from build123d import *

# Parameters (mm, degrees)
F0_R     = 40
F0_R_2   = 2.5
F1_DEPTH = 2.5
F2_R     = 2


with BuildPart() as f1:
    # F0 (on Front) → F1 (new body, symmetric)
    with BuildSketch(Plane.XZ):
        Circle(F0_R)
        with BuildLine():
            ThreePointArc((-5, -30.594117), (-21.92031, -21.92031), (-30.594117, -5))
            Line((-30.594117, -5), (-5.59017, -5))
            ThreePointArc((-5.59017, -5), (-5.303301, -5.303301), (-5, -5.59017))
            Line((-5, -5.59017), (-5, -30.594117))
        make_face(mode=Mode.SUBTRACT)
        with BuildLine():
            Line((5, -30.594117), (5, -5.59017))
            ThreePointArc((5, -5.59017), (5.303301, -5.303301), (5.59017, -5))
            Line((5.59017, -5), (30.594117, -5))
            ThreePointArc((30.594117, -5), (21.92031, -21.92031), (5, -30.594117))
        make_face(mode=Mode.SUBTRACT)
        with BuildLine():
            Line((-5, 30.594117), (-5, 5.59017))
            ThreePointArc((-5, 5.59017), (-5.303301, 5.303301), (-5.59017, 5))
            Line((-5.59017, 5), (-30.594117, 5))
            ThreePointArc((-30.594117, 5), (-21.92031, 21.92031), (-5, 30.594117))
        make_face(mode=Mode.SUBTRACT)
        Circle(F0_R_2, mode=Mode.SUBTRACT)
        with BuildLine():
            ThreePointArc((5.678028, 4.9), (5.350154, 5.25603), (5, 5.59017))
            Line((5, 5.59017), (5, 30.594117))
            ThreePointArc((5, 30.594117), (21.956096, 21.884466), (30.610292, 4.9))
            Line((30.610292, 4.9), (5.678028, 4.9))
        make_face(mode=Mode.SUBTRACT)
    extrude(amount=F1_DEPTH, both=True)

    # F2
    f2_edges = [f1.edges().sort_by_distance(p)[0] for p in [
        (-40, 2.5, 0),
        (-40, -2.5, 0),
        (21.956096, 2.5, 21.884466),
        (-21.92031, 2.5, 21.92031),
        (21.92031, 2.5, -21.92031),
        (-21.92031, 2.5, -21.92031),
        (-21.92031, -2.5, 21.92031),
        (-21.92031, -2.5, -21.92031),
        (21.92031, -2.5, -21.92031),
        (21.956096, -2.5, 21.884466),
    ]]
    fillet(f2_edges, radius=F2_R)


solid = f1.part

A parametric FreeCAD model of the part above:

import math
import FreeCAD as App
import Part
import Sketcher
Q = App.Units.Quantity


def edges_at(feature, points):
    """Names of the edges that pass closest to the given points."""
    edges = feature.Shape.Edges
    near = lambda p: min(range(len(edges)), key=lambda i: edges[i].distToShape(Part.Vertex(*p))[0])
    return sorted({f"Edge{near(p) + 1}" for p in points})

doc = App.newDocument("Part")
body = doc.addObject("PartDesign::Body", "Body")

# Sketch on XZ plane
sketch1 = doc.addObject("Sketcher::SketchObject", "Sketch")
body.addObject(sketch1)
sketch1.AttachmentSupport = (doc.XZ_Plane, [""])
sketch1.MapMode = "FlatFace"
sketch1.addGeometry([
    Part.Circle(App.Vector(0, 0, 0), App.Vector(0, 0, 1), 40),  # 0
    Part.LineSegment(App.Vector(-5, -5.59017, 0), App.Vector(-5, -30.594117, 0)),  # 1
    Part.ArcOfCircle(Part.Circle(App.Vector(0.000001, 0.000001, 0), App.Vector(0, 0, 1), 31.000001), math.radians(-170.7182), math.radians(-99.2818)),  # 2
    Part.LineSegment(App.Vector(-30.594117, -5, 0), App.Vector(-5.59017, -5, 0)),  # 3
    Part.ArcOfCircle(Part.Circle(App.Vector(-0.000072, -0.000072, 0), App.Vector(0, 0, 1), 7.499898), math.radians(-138.189729), math.radians(-131.810271)),  # 4
    Part.Circle(App.Vector(0, 0, 0), App.Vector(0, 0, 1), 2.5),  # 5
    Part.ArcOfCircle(Part.Circle(App.Vector(-0.000001, 0.000001, 0), App.Vector(0, 0, 1), 31.000001), math.radians(-80.7182), math.radians(-9.2818)),  # 6
    Part.LineSegment(App.Vector(5, -30.594117, 0), App.Vector(5, -5.59017, 0)),  # 7
    Part.ArcOfCircle(Part.Circle(App.Vector(0.000072, -0.000072, 0), App.Vector(0, 0, 1), 7.499898), math.radians(-48.189729), math.radians(-41.810271)),  # 8
    Part.LineSegment(App.Vector(5.59017, -5, 0), App.Vector(30.594117, -5, 0)),  # 9
    Part.ArcOfCircle(Part.Circle(App.Vector(0.000001, -0.000001, 0), App.Vector(0, 0, 1), 31.000001), math.radians(99.2818), math.radians(170.7182)),  # 10
    Part.LineSegment(App.Vector(-5, 30.594117, 0), App.Vector(-5, 5.59017, 0)),  # 11
    Part.ArcOfCircle(Part.Circle(App.Vector(-0.000072, 0.000072, 0), App.Vector(0, 0, 1), 7.499898), math.radians(131.810271), math.radians(138.189729)),  # 12
    Part.LineSegment(App.Vector(-5.59017, 5, 0), App.Vector(-30.594117, 5, 0)),  # 13
    Part.LineSegment(App.Vector(30.610292, 4.9, 0), App.Vector(5.678028, 4.9, 0)),  # 14
    Part.ArcOfCircle(Part.Circle(App.Vector(-0.000048, -0.000048, 0), App.Vector(0, 0, 1), 7.500068), math.radians(40.793433), math.radians(48.189657)),  # 15
    Part.LineSegment(App.Vector(5, 5.59017, 0), App.Vector(5, 30.594117, 0)),  # 16
    Part.ArcOfCircle(Part.Circle(App.Vector(0.000001, 0.000001, 0), App.Vector(0, 0, 1), 30.999999), math.radians(9.09457), math.radians(80.718202)),  # 17
], False)
sketch1.addConstraint([
    Sketcher.Constraint("Coincident", 1, 2, 2, 2),
    Sketcher.Constraint("Coincident", 2, 1, 3, 1),
    Sketcher.Constraint("Coincident", 3, 2, 4, 1),
    Sketcher.Constraint("Coincident", 4, 2, 1, 1),
    Sketcher.Constraint("Coincident", 6, 1, 7, 1),
    Sketcher.Constraint("Coincident", 7, 2, 8, 1),
    Sketcher.Constraint("Coincident", 8, 2, 9, 1),
    Sketcher.Constraint("Coincident", 9, 2, 6, 2),
    Sketcher.Constraint("Coincident", 10, 1, 11, 1),
    Sketcher.Constraint("Coincident", 11, 2, 12, 1),
    Sketcher.Constraint("Coincident", 12, 2, 13, 1),
    Sketcher.Constraint("Coincident", 13, 2, 10, 2),
    Sketcher.Constraint("Coincident", 14, 2, 15, 1),
    Sketcher.Constraint("Coincident", 15, 2, 16, 1),
    Sketcher.Constraint("Coincident", 16, 2, 17, 2),
    Sketcher.Constraint("Coincident", 17, 1, 14, 1),
    Sketcher.Constraint("Vertical", 1),
    Sketcher.Constraint("Horizontal", 3),
    Sketcher.Constraint("Vertical", 7),
    Sketcher.Constraint("Horizontal", 9),
    Sketcher.Constraint("Vertical", 11),
    Sketcher.Constraint("Horizontal", 13),
    Sketcher.Constraint("Horizontal", 14),
    Sketcher.Constraint("Vertical", 16),
    Sketcher.Constraint("Coincident", 0, 3, -1, 1),
    Sketcher.Constraint("Coincident", 2, 3, -1, 1),
    Sketcher.Constraint("Coincident", 5, 3, -1, 1),
    Sketcher.Constraint("Coincident", 6, 3, -1, 1),
    Sketcher.Constraint("Coincident", 10, 3, -1, 1),
    Sketcher.Constraint("Coincident", 17, 3, -1, 1),
    Sketcher.Constraint("Equal", 2, 6),
    Sketcher.Constraint("Equal", 4, 8),
    Sketcher.Constraint("Equal", 6, 10),
    Sketcher.Constraint("Equal", 8, 12),
    Sketcher.Constraint("Symmetric", 8, 3, 12, 3, -1, 1),
    Sketcher.Constraint("Symmetric", 4, 2, 15, 2, -1, 1),
    Sketcher.Constraint("Symmetric", 4, 3, 8, 3, -2),
    Sketcher.Constraint("Symmetric", 10, 1, 16, 2, -2),
    Sketcher.Constraint("Horizontal", 1, 2, 6, 1),
    Sketcher.Constraint("Horizontal", 3, 2, 8, 2),
    Sketcher.Constraint("Vertical", 3, 2, 12, 2),
    Sketcher.Constraint("Equal", 13, 1),
    Sketcher.Constraint("Diameter", 0, Q("80 mm")),
    Sketcher.Constraint("Diameter", 5, Q("5 mm")),
    Sketcher.Constraint("Radius", 2, Q("31.000001 mm")),
    Sketcher.Constraint("DistanceX", 1, 2, -1, 1, Q("5 mm")),
    Sketcher.Constraint("DistanceY", 2, 1, -1, 1, Q("5 mm")),
    Sketcher.Constraint("DistanceY", -1, 1, 14, 2, Q("4.9 mm")),
    Sketcher.Constraint("Radius", 4, Q("7.499898 mm")),
    Sketcher.Constraint("Radius", 15, Q("7.500068 mm")),
    Sketcher.Constraint("DistanceX", 3, 2, 4, 3, Q("5.590098 mm")),
    Sketcher.Constraint("DistanceX", 14, 2, 14, 1, Q("24.932264 mm")),
])
pad1 = doc.addObject("PartDesign::Pad", "Pad")
body.addObject(pad1)
pad1.Profile = sketch1
pad1.Length = 5
pad1.Midplane = True
doc.recompute()

fillet = doc.addObject("PartDesign::Fillet", "Fillet")
body.addObject(fillet)
fillet.Base = (pad1, edges_at(pad1, [
    (-40, 2.5, 0),
    (-40, -2.5, 0),
    (21.956, 2.5, 21.884),
    (-21.92, 2.5, 21.92),
    (21.92, 2.5, -21.92),
    (-21.92, 2.5, -21.92),
    (-21.92, -2.5, 21.92),
    (-21.92, -2.5, -21.92),
    (21.92, -2.5, -21.92),
    (21.956, -2.5, 21.884),
]))
fillet.Radius = 2

doc.recompute()
